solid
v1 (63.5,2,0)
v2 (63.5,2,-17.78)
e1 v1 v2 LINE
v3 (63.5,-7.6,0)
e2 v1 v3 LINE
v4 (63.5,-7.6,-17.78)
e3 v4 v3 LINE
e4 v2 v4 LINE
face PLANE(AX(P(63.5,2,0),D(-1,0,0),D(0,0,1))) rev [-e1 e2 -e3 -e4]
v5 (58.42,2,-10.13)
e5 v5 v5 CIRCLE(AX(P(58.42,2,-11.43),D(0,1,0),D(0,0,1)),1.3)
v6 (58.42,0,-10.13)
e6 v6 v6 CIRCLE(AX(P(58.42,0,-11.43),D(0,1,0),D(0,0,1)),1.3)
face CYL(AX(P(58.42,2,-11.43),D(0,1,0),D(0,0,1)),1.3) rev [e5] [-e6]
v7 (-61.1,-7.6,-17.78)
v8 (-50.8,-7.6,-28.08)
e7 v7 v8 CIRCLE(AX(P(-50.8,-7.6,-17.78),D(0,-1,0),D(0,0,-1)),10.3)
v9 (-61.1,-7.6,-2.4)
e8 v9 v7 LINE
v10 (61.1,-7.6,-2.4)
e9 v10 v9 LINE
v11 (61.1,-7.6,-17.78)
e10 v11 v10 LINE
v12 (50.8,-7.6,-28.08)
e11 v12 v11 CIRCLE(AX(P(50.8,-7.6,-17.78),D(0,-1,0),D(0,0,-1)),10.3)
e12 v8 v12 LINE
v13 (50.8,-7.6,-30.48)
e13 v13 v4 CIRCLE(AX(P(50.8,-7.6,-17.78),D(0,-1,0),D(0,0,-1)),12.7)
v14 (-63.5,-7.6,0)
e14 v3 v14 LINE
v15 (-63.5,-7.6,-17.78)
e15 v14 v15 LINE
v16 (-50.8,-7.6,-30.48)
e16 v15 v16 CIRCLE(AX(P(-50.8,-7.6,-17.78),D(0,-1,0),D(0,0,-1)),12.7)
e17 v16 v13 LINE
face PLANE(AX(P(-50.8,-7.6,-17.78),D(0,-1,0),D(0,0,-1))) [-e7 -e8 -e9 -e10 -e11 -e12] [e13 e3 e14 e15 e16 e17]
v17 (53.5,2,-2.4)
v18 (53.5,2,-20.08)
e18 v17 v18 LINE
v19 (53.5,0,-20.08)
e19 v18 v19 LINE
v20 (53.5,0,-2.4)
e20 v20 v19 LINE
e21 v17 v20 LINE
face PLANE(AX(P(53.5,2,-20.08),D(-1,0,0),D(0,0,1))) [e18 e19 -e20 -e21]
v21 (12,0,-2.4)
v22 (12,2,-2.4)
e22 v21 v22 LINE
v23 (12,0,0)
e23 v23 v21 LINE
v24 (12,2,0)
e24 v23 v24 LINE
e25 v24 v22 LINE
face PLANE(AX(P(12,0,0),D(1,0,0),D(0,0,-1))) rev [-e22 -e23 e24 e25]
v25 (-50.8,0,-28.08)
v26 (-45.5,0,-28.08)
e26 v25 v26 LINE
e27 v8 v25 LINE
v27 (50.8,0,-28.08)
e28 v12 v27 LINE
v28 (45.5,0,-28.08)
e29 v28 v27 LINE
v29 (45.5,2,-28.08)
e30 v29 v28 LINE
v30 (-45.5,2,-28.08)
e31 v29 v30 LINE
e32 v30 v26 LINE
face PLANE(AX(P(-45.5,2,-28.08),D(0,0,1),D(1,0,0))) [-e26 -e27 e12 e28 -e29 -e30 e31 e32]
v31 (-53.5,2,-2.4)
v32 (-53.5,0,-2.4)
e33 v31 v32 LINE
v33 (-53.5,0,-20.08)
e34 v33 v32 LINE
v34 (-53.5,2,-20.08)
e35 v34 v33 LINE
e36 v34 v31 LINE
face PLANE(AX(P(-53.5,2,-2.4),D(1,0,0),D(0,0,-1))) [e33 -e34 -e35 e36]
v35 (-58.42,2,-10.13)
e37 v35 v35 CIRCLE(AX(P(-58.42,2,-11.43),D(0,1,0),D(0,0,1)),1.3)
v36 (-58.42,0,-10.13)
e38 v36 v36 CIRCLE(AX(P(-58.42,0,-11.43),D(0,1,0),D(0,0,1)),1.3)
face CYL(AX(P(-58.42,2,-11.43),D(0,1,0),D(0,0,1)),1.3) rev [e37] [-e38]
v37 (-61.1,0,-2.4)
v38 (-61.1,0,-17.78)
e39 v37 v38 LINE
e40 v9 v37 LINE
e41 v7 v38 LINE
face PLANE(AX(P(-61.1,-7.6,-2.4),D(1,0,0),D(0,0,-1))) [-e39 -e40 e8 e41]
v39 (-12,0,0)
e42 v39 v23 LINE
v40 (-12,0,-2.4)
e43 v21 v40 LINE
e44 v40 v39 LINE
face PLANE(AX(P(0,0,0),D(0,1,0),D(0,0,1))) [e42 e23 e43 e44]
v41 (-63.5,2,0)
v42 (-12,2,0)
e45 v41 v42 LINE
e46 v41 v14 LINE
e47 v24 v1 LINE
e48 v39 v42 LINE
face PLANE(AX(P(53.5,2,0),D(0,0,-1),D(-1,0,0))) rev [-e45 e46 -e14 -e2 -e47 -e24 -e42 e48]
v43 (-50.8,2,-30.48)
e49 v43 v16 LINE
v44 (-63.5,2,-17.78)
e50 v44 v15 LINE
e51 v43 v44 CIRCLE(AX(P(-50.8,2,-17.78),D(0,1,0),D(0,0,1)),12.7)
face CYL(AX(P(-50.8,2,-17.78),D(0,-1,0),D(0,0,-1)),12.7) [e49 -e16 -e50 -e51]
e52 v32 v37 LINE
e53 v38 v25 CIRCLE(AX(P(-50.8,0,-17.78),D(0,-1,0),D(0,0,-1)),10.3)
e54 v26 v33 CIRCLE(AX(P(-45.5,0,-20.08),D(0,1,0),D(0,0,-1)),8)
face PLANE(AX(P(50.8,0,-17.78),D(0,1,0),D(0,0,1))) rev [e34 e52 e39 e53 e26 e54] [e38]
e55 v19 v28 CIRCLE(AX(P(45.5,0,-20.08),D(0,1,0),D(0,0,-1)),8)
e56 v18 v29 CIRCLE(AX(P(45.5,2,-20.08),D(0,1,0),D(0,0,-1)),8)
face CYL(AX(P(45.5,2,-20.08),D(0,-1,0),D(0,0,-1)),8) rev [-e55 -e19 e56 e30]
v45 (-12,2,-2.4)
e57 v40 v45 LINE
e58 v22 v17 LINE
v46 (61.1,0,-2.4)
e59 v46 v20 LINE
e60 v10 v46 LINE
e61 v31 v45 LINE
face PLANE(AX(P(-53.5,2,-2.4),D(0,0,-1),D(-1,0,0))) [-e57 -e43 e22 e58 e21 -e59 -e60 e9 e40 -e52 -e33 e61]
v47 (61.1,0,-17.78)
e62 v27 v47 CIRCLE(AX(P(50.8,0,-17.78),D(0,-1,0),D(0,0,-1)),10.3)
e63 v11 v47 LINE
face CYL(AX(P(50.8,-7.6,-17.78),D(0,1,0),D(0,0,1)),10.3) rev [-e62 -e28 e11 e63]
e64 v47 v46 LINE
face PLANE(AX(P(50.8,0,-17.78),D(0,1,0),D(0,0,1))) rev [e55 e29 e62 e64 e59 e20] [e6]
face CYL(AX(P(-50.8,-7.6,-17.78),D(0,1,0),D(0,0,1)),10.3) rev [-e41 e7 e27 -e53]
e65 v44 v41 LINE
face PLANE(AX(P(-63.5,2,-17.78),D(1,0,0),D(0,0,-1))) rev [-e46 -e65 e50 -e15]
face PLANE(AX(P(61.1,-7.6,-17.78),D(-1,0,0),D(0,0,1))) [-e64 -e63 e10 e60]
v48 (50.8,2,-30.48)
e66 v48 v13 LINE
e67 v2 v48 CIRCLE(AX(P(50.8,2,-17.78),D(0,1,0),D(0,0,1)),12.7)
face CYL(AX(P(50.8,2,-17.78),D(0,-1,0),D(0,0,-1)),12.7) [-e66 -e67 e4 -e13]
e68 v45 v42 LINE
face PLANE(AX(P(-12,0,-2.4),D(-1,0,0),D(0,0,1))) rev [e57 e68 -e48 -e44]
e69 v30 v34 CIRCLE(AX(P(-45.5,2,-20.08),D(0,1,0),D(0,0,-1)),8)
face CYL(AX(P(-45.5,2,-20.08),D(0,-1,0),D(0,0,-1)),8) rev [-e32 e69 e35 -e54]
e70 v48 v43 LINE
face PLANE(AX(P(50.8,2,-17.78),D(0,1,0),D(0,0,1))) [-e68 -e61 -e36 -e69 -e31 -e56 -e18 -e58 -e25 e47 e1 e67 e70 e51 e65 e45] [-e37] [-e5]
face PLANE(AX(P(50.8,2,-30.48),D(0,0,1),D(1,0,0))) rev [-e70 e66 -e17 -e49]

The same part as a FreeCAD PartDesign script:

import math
import FreeCAD as App
import Part
import Sketcher
from FreeCAD import Vector


def add_polygon(sketch, points):
    """Adds a closed chain of lines whose ends are joined by coincident constraints."""
    first, n = sketch.GeometryCount, len(points)
    for a, b in zip(points, points[1:] + points[:1]):
        sketch.addGeometry(Part.LineSegment(App.Vector(*a, 0), App.Vector(*b, 0)), False)
    for i in range(n):
        sketch.addConstraint(Sketcher.Constraint("Coincident", first + i, 2, first + (i + 1) % n, 1))

doc = App.newDocument("Part")
body = doc.addObject("PartDesign::Body", "Body")

# Sketch on XZ plane
sketch1 = body.newObject("Sketcher::SketchObject", "Sketch")
sketch1.AttachmentSupport = (doc.getObject("XZ_Plane"), [""])
sketch1.MapMode = "FlatFace"
sketch1.addGeometry([
    Part.LineSegment(Vector(-63.5, 0, 0), Vector(63.5, 0, 0)),  # 0
    Part.LineSegment(Vector(63.5, 0, 0), Vector(63.5, -17.78, 0)),  # 1
    Part.ArcOfCircle(Part.Circle(Vector(50.8, -17.78, 0), Vector(0, 0, 1), 12.7), math.radians(-90), math.radians(0)),  # 2
    Part.LineSegment(Vector(50.8, -30.48, 0), Vector(-50.8, -30.48, 0)),  # 3
    Part.ArcOfCircle(Part.Circle(Vector(-50.8, -17.78, 0), Vector(0, 0, 1), 12.7), math.radians(180), math.radians(270)),  # 4
    Part.LineSegment(Vector(-63.5, -17.78, 0), Vector(-63.5, 0, 0)),  # 5
    Part.LineSegment(Vector(53.5, -2.4, 0), Vector(-53.5, -2.4, 0)),  # 6
    Part.LineSegment(Vector(-53.5, -2.4, 0), Vector(-53.5, -20.08, 0)),  # 7
    Part.ArcOfCircle(Part.Circle(Vector(-45.5, -20.08, 0), Vector(0, 0, 1), 8), math.radians(-180), math.radians(-90)),  # 8
    Part.LineSegment(Vector(-45.5, -28.08, 0), Vector(45.5, -28.08, 0)),  # 9
    Part.ArcOfCircle(Part.Circle(Vector(45.5, -20.08, 0), Vector(0, 0, 1), 8), math.radians(-90), math.radians(0)),  # 10
    Part.LineSegment(Vector(53.5, -20.08, 0), Vector(53.5, -2.4, 0)),  # 11
], False)
sketch1.addConstraint([
    Sketcher.Constraint("Coincident", 0, 2, 1, 1),
    Sketcher.Constraint("Tangent", 1, 2, 2, 2),
    Sketcher.Constraint("Tangent", 2, 1, 3, 1),
    Sketcher.Constraint("Tangent", 3, 2, 4, 2),
    Sketcher.Constraint("Tangent", 4, 1, 5, 1),
    Sketcher.Constraint("Coincident", 5, 2, 0, 1),
    Sketcher.Constraint("Coincident", 6, 2, 7, 1),
    Sketcher.Constraint("Tangent", 7, 2, 8, 1),
    Sketcher.Constraint("Tangent", 8, 2, 9, 1),
    Sketcher.Constraint("Tangent", 9, 2, 10, 1),
    Sketcher.Constraint("Tangent", 10, 2, 11, 1),
    Sketcher.Constraint("Coincident", 11, 2, 6, 1),
    Sketcher.Constraint("Horizontal", 0),
    Sketcher.Constraint("Vertical", 1),
    Sketcher.Constraint("Horizontal", 3),
    Sketcher.Constraint("Vertical", 5),
    Sketcher.Constraint("Horizontal", 6),
    Sketcher.Constraint("Vertical", 7),
    Sketcher.Constraint("Horizontal", 9),
    Sketcher.Constraint("Vertical", 11),
    Sketcher.Constraint("Equal", 2, 4),
    Sketcher.Constraint("Equal", 8, 10),
    Sketcher.Constraint("Symmetric", 0, 2, 5, 2, -1, 1),
    Sketcher.Constraint("Radius", 8, 8.0),
    Sketcher.Constraint("Radius", 2, 12.7),
    Sketcher.Constraint("DistanceX", 0, 1, 0, 2, 127.0),
    Sketcher.Constraint("DistanceX", 6, 2, 6, 1, 107.0),
    Sketcher.Constraint("DistanceX", 10, 3, 0, 2, 18.0),
    Sketcher.Constraint("DistanceY", 1, 2, 1, 1, 17.78),
    Sketcher.Constraint("DistanceY", 7, 2, 7, 1, 17.68),
    Sketcher.Constraint("DistanceY", 6, 2, -1, 1, 2.4),
])
pad1 = body.newObject("PartDesign::Pad", "Pad")
pad1.Profile = sketch1
pad1.Length = 2
pad1.Reversed = True

# Sketch on XZ plane
sketch2 = body.newObject("Sketcher::SketchObject", "Sketch001")
sketch2.AttachmentSupport = (doc.getObject("XZ_Plane"), [""])
sketch2.MapMode = "FlatFace"
sketch2.AttachmentOffset = App.Placement(Vector(0, 0, -2), App.Rotation())
sketch2.addGeometry([
    Part.Circle(Vector(-58.42, -11.43, 0), Vector(0, 0, 1), 1.3),
    Part.Circle(Vector(58.42, -11.43, 0), Vector(0, 0, 1), 1.3),
], False)
sketch2.addConstraint([
    Sketcher.Constraint("Equal", 0, 1),
    Sketcher.Constraint("Symmetric", 0, 3, 1, 3, -2),
    Sketcher.Constraint("Diameter", 0, 2.6),
    Sketcher.Constraint("DistanceX", 0, 3, -1, 1, 58.42),
    Sketcher.Constraint("DistanceY", 0, 3, -1, 1, 11.43),
])
doc.recompute()
hole = body.newObject("PartDesign::Hole", "Hole")
hole.Profile = sketch2
hole.ThreadType = "None"
hole.Diameter = 2.6
hole.DepthType = "ThroughAll"
hole.Reversed = True

# Sketch on XZ plane
sketch3 = body.newObject("Sketcher::SketchObject", "Sketch002")
sketch3.AttachmentSupport = (doc.getObject("XZ_Plane"), [""])
sketch3.MapMode = "FlatFace"
sketch3.AttachmentOffset = App.Placement(Vector(0, 0, 7.6), App.Rotation())
sketch3.addGeometry([
    Part.LineSegment(Vector(-63.5, 0, 0), Vector(-63.5, -17.78, 0)),  # 0
    Part.ArcOfCircle(Part.Circle(Vector(-50.8, -17.78, 0), Vector(0, 0, 1), 12.7), math.radians(180), math.radians(270)),  # 1
    Part.LineSegment(Vector(-50.8, -30.48, 0), Vector(50.8, -30.48, 0)),  # 2
    Part.ArcOfCircle(Part.Circle(Vector(50.8, -17.78, 0), Vector(0, 0, 1), 12.7), math.radians(-90), math.radians(0)),  # 3
    Part.LineSegment(Vector(63.5, -17.78, 0), Vector(63.5, 0, 0)),  # 4
    Part.LineSegment(Vector(63.5, 0, 0), Vector(-63.5, 0, 0)),  # 5
    Part.LineSegment(Vector(-61.1, -2.4, 0), Vector(61.1, -2.4, 0)),  # 6
    Part.LineSegment(Vector(61.1, -2.4, 0), Vector(61.1, -17.78, 0)),  # 7
    Part.ArcOfCircle(Part.Circle(Vector(50.8, -17.78, 0), Vector(0, 0, 1), 10.3), math.radians(-90), math.radians(0)),  # 8
    Part.LineSegment(Vector(50.8, -28.08, 0), Vector(-50.8, -28.08, 0)),  # 9
    Part.ArcOfCircle(Part.Circle(Vector(-50.8, -17.78, 0), Vector(0, 0, 1), 10.3), math.radians(-180), math.radians(-90)),  # 10
    Part.LineSegment(Vector(-61.1, -17.78, 0), Vector(-61.1, -2.4, 0)),  # 11
], False)
sketch3.addConstraint([
    Sketcher.Constraint("Tangent", 0, 2, 1, 1),
    Sketcher.Constraint("Tangent", 1, 2, 2, 1),
    Sketcher.Constraint("Tangent", 2, 2, 3, 1),
    Sketcher.Constraint("Tangent", 3, 2, 4, 1),
    Sketcher.Constraint("Coincident", 4, 2, 5, 1),
    Sketcher.Constraint("Coincident", 5, 2, 0, 1),
    Sketcher.Constraint("Coincident", 6, 2, 7, 1),
    Sketcher.Constraint("Tangent", 7, 2, 8, 2),
    Sketcher.Constraint("Tangent", 8, 1, 9, 1),
    Sketcher.Constraint("Tangent", 9, 2, 10, 2),
    Sketcher.Constraint("Tangent", 10, 1, 11, 1),
    Sketcher.Constraint("Coincident", 11, 2, 6, 1),
    Sketcher.Constraint("Vertical", 0),
    Sketcher.Constraint("Horizontal", 2),
    Sketcher.Constraint("Vertical", 4),
    Sketcher.Constraint("Horizontal", 5),
    Sketcher.Constraint("Horizontal", 6),
    Sketcher.Constraint("Vertical", 7),
    Sketcher.Constraint("Horizontal", 9),
    Sketcher.Constraint("Vertical", 11),
    Sketcher.Constraint("Coincident", 8, 3, 3, 3),
    Sketcher.Constraint("Coincident", 10, 3, 1, 3),
    Sketcher.Constraint("Equal", 1, 3),
    Sketcher.Constraint("Symmetric", 4, 2, 5, 2, -1, 1),
    Sketcher.Constraint("Radius", 1, 12.7),
    Sketcher.Constraint("Radius", 8, 10.3),
    Sketcher.Constraint("DistanceX", 5, 2, 5, 1, 127.0),
    Sketcher.Constraint("DistanceY", 0, 2, 0, 1, 17.78),
    Sketcher.Constraint("DistanceY", 7, 2, 7, 1, 15.38),
])
pad2 = body.newObject("PartDesign::Pad", "Pad001")
pad2.Profile = sketch3
pad2.Length = 7.6
pad2.Reversed = True

# Sketch on XZ plane
sketch4 = body.newObject("Sketcher::SketchObject", "Sketch003")
sketch4.AttachmentSupport = (doc.getObject("XZ_Plane"), [""])
sketch4.MapMode = "FlatFace"
sketch4.AttachmentOffset = App.Placement(Vector(0, 0, -2), App.Rotation())
add_polygon(sketch4, [(-12, -2.4), (-12, 0), (12, 0), (12, -2.4)])  # lines 0-3
sketch4.addConstraint([
    Sketcher.Constraint("Vertical", 0),
    Sketcher.Constraint("Horizontal", 1),
    Sketcher.Constraint("Vertical", 2),
    Sketcher.Constraint("Horizontal", 3),
    Sketcher.Constraint("Symmetric", 0, 2, 1, 2, -1, 1),
    Sketcher.Constraint("DistanceX", 1, 1, 1, 2, 24.0),
    Sketcher.Constraint("DistanceY", 0, 1, 0, 2, 2.4),
])
pocket1 = body.newObject("PartDesign::Pocket", "Pocket")
pocket1.Profile = sketch4
pocket1.Length = 2
pocket1.Reversed = True

doc.recompute()
